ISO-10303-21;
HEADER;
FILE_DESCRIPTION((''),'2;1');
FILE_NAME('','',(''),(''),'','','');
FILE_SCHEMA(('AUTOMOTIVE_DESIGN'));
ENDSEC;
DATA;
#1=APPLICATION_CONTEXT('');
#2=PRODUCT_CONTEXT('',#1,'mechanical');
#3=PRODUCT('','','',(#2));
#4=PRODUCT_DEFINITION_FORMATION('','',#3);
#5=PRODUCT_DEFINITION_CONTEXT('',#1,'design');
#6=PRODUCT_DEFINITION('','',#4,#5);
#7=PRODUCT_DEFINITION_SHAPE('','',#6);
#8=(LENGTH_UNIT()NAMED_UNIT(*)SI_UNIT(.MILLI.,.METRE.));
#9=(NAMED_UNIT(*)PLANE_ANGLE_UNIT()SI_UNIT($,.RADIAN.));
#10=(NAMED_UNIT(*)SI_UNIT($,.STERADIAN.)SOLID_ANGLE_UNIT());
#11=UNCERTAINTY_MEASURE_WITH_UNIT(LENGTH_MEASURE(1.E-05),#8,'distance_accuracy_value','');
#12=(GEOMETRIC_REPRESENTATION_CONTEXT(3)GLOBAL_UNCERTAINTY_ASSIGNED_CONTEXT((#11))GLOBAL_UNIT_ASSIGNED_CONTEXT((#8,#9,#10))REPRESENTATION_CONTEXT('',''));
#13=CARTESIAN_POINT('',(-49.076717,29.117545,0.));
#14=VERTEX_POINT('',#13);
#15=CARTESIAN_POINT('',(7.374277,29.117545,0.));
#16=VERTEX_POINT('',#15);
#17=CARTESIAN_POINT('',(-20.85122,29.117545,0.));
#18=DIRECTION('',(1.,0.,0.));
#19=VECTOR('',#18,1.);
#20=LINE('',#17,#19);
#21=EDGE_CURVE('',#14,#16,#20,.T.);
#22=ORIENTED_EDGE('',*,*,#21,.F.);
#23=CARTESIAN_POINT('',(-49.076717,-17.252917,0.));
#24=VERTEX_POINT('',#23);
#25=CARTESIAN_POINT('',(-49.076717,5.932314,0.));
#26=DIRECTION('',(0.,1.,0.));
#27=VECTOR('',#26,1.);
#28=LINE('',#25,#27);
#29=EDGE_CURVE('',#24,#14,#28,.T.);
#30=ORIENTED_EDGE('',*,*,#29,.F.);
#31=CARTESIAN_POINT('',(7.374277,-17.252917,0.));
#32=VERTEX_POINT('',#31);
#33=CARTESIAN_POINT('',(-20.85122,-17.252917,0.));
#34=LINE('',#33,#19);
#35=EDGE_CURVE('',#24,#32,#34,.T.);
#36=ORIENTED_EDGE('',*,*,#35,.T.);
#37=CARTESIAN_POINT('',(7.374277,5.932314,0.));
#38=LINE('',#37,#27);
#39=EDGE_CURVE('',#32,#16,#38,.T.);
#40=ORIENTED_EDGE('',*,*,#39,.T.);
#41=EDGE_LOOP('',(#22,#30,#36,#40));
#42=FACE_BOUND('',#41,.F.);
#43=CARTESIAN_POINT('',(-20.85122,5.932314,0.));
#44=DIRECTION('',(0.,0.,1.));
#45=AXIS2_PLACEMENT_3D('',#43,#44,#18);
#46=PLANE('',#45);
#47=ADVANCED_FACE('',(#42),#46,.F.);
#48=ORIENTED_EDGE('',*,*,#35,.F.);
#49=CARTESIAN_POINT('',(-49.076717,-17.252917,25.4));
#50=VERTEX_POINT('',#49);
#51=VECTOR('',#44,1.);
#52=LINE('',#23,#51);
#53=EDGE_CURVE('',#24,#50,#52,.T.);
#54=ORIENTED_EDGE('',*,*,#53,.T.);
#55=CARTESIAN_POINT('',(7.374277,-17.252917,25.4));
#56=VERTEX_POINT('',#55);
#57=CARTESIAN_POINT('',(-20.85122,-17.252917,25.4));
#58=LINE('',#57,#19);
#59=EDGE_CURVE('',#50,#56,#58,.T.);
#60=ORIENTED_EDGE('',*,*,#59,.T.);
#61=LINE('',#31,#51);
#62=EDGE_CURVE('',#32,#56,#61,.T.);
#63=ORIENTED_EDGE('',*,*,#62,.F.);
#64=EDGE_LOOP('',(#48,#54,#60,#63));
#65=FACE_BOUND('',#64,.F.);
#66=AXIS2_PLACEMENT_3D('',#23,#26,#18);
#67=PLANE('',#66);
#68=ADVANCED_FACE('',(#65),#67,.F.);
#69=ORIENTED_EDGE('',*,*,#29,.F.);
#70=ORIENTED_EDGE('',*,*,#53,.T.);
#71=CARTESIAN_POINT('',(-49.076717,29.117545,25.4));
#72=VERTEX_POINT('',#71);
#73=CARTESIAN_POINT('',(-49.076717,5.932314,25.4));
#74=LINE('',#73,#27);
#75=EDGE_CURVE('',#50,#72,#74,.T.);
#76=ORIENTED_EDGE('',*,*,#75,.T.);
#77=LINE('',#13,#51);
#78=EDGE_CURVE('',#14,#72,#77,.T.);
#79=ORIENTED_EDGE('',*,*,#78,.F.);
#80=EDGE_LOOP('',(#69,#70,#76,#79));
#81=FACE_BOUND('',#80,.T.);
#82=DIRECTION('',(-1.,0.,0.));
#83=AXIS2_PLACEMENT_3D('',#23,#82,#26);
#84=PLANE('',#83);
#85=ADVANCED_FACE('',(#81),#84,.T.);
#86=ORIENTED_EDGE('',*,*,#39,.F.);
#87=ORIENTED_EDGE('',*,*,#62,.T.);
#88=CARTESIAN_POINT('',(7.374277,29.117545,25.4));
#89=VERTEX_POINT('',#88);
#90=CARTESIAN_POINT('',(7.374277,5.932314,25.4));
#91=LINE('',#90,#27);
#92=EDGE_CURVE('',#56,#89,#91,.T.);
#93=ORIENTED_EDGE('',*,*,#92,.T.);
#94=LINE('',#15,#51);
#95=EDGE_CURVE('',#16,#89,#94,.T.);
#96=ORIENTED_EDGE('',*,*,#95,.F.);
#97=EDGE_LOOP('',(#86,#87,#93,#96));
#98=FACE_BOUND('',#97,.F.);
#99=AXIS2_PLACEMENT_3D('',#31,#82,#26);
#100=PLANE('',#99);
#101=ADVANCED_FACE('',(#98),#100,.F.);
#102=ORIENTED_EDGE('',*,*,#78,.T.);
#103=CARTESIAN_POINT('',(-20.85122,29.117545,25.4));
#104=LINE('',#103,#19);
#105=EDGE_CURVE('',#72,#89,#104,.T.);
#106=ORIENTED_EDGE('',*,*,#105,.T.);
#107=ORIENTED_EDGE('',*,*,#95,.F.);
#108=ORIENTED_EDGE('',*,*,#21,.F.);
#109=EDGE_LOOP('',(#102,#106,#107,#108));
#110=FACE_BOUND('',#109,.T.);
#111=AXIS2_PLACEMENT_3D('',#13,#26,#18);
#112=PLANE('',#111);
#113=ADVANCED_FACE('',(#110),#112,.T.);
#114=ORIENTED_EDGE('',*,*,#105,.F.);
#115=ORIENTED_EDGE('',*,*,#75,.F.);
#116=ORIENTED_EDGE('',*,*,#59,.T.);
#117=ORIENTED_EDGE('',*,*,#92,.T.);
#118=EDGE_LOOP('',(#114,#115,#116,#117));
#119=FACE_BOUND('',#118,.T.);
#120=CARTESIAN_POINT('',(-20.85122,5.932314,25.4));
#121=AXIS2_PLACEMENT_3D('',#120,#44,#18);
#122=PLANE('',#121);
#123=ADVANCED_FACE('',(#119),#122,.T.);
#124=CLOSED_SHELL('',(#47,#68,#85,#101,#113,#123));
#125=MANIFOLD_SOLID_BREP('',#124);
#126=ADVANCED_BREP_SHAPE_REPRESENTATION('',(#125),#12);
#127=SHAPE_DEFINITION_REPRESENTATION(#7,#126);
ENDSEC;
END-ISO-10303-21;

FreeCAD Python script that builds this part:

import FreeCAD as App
import Part
import Sketcher

V = App.Vector
Q = App.Units.Quantity

doc = App.newDocument("Part")
body = doc.addObject("PartDesign::Body", "Body")

sketch1 = body.newObject("Sketcher::SketchObject", "Sketch")
sketch1.AttachmentSupport = (doc.getObject("XY_Plane"), [""])
sketch1.MapMode = "FlatFace"
sketch1.addGeometry([
    Part.LineSegment(V(-49, 29, 0), V(-49, -17, 0)),
    Part.LineSegment(V(-49, -17, 0), V(7, -17, 0)),
    Part.LineSegment(V(7, -17, 0), V(7, 29, 0)),
    Part.LineSegment(V(7, 29, 0), V(-49, 29, 0)),
], False)
sketch1.addConstraint([
    Sketcher.Constraint("Coincident", 0, 2, 1, 1),
    Sketcher.Constraint("Coincident", 1, 2, 2, 1),
    Sketcher.Constraint("Coincident", 2, 2, 3, 1),
    Sketcher.Constraint("Coincident", 3, 2, 0, 1),
    Sketcher.Constraint("Vertical", 0),
    Sketcher.Constraint("Horizontal", 1),
    Sketcher.Constraint("Vertical", 2),
    Sketcher.Constraint("Horizontal", 3),
    Sketcher.Constraint("DistanceX", 1, 1, 1, 2, 56.450994),
    Sketcher.Constraint("DistanceY", 0, 2, 0, 1, 46.370463),
    Sketcher.Constraint("DistanceX", 0, 2, -1, 1, 49.076717),
    Sketcher.Constraint("DistanceY", 0, 2, -1, 1, 17.252917),
])
pad1 = body.newObject("PartDesign::Pad", "Pad")
pad1.Profile = sketch1
pad1.Length = Q("1 in")
body2 = doc.addObject("PartDesign::Body", "Body001")

sketch2 = body2.newObject("Sketcher::SketchObject", "Sketch001")
sketch2.AttachmentSupport = (doc.getObject("XY_Plane001"), [""])
sketch2.MapMode = "FlatFace"
sketch2.AttachmentOffset = App.Placement(V(0, 0, 1 * 25.4), App.Rotation())
sketch2.addGeometry(Part.Circle(V(-24, 6, 0), V(0, 0, 1), 10), False)
sketch2.addConstraint([
    Sketcher.Constraint("Diameter", 0, 20.836426),
    Sketcher.Constraint("DistanceX", 0, 3, -1, 1, 23.669293),
    Sketcher.Constraint("DistanceY", -1, 1, 0, 3, 5.861445),
])
pad2 = body2.newObject("PartDesign::Pad", "Pad001")
pad2.Profile = sketch2
pad2.Length = Q("1 in")
pad2.Midplane = True
body2.Visibility = False

doc.recompute()
